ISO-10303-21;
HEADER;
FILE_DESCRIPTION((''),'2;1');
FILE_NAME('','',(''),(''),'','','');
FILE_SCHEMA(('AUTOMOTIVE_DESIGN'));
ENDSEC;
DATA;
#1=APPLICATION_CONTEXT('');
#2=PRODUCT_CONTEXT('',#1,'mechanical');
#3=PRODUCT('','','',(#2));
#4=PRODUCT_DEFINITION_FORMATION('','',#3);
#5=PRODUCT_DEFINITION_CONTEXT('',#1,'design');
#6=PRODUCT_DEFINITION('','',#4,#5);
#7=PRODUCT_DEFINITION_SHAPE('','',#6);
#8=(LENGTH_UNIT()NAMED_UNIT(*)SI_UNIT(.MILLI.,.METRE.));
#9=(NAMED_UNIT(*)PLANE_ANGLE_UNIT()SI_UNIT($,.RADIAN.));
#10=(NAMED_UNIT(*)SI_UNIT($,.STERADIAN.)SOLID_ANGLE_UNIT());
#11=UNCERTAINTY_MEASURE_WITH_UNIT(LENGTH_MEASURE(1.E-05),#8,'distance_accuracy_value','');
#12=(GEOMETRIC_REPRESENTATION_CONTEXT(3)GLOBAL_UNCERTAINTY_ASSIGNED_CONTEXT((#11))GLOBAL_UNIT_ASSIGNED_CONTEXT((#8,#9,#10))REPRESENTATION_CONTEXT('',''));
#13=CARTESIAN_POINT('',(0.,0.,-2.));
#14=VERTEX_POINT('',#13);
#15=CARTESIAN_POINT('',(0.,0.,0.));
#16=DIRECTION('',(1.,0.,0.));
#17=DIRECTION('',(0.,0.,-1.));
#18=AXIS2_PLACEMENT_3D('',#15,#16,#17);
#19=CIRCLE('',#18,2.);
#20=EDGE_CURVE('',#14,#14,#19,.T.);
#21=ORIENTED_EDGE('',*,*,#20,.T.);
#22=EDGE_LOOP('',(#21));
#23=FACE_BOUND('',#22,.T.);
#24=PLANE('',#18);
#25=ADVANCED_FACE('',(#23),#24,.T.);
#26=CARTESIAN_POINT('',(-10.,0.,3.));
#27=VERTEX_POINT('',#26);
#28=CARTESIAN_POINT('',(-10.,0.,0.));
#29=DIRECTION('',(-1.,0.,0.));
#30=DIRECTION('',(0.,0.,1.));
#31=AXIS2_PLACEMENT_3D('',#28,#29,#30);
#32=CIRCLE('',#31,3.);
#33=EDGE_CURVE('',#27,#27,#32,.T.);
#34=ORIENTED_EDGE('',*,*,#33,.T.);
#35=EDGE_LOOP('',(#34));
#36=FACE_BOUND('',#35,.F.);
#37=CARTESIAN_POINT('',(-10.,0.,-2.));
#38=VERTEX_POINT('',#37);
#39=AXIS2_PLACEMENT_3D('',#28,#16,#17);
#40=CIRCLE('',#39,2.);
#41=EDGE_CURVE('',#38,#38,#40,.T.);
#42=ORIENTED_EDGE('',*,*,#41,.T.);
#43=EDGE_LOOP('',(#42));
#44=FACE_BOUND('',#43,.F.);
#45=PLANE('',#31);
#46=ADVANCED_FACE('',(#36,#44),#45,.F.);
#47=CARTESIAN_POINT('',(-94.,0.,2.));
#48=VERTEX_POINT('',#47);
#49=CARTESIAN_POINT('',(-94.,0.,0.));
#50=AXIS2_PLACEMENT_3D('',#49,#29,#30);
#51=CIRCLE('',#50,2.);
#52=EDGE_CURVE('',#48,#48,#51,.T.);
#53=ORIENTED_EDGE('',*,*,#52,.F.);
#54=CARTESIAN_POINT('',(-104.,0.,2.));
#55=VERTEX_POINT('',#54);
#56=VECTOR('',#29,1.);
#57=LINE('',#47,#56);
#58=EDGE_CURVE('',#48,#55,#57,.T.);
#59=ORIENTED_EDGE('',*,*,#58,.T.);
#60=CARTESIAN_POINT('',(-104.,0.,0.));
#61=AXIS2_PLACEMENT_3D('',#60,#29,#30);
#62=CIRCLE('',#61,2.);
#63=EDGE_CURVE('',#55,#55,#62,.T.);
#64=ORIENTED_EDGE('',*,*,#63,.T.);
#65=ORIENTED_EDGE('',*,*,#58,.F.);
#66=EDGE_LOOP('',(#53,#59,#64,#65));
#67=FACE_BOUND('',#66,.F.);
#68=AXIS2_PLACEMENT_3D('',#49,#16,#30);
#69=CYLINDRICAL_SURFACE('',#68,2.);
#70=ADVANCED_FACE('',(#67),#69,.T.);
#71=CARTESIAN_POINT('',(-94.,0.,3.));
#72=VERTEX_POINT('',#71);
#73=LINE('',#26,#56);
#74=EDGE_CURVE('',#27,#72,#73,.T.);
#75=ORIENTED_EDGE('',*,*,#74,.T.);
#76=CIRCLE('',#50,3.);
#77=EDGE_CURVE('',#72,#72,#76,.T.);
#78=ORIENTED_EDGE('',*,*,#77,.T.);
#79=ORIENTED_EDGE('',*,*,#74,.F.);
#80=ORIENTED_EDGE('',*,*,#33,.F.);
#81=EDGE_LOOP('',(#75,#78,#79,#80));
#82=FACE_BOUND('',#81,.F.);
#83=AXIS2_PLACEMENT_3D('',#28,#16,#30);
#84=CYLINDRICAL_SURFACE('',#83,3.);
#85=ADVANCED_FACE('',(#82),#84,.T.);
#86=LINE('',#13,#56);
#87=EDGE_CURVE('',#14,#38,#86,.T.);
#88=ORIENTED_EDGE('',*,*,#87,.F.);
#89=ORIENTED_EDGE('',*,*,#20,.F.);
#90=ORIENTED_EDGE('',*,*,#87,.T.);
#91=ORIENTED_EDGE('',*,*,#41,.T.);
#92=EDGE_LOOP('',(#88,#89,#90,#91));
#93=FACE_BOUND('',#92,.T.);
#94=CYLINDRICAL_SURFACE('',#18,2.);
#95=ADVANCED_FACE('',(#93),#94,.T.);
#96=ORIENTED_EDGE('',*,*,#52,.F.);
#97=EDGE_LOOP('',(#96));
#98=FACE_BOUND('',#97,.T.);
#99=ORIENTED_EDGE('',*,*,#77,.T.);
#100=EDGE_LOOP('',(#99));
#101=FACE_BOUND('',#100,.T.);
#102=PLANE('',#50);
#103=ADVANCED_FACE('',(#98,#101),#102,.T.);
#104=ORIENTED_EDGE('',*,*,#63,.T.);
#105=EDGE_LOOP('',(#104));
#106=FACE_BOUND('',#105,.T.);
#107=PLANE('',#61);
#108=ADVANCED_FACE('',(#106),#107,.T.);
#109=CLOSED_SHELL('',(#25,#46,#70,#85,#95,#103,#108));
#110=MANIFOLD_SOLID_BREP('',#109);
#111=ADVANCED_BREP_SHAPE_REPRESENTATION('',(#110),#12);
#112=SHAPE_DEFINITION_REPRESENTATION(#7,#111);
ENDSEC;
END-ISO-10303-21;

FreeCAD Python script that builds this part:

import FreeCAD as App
import Part
import Sketcher
from FreeCAD import Vector

doc = App.newDocument("Part")
params = doc.addObject("Spreadsheet::Sheet", "Params")
for row, (alias, value) in enumerate([
    ("sketch1_diameter", "4 mm"),
    ("pad1_length", "10 mm"),
    ("sketch2_diameter", "6 mm"),
    ("pad2_length", "84 mm"),
    ("sketch3_diameter", "4 mm"),
    ("pad3_length", "10 mm"),
], start=1):
    params.set(f"A{row}", alias)
    params.set(f"B{row}", "=" + value)
    params.setAlias(f"B{row}", alias)

body = doc.addObject("PartDesign::Body", "Body")

# Sketch on YZ plane
sketch1 = body.newObject("Sketcher::SketchObject", "Sketch")
sketch1.AttachmentSupport = (doc.getObject("YZ_Plane"), [""])
sketch1.MapMode = "FlatFace"
sketch1.addGeometry(Part.Circle(Vector(0, 0, 0), Vector(0, 0, 1), 2), False)
sketch1.addConstraint(Sketcher.Constraint("Coincident", 0, 3, -1, 1))
sketch1.addConstraint(Sketcher.Constraint("Diameter", 0, 4.0))
sketch1.setExpression("Constraints[1]", "Params.sketch1_diameter")
pad1 = body.newObject("PartDesign::Pad", "Pad")
pad1.Profile = sketch1
pad1.setExpression("Length", "Params.pad1_length")
pad1.Reversed = True

# Sketch on YZ plane
sketch2 = body.newObject("Sketcher::SketchObject", "Sketch001")
sketch2.AttachmentSupport = (doc.getObject("YZ_Plane"), [""])
sketch2.MapMode = "FlatFace"
sketch2.AttachmentOffset = App.Placement(Vector(0, 0, -10), App.Rotation())
sketch2.addGeometry(Part.Circle(Vector(0, 0, 0), Vector(0, 0, 1), 3), False)
sketch2.addConstraint(Sketcher.Constraint("Coincident", 0, 3, -1, 1))
sketch2.addConstraint(Sketcher.Constraint("Diameter", 0, 6.0))
sketch2.setExpression("Constraints[1]", "Params.sketch2_diameter")
pad2 = body.newObject("PartDesign::Pad", "Pad001")
pad2.Profile = sketch2
pad2.setExpression("Length", "Params.pad2_length")
pad2.Reversed = True

# Sketch on YZ plane
sketch3 = body.newObject("Sketcher::SketchObject", "Sketch002")
sketch3.AttachmentSupport = (doc.getObject("YZ_Plane"), [""])
sketch3.MapMode = "FlatFace"
sketch3.AttachmentOffset = App.Placement(Vector(0, 0, -94), App.Rotation())
sketch3.addGeometry(Part.Circle(Vector(0, 0, 0), Vector(0, 0, 1), 2), False)
sketch3.addConstraint(Sketcher.Constraint("Coincident", 0, 3, -1, 1))
sketch3.addConstraint(Sketcher.Constraint("Diameter", 0, 4.0))
sketch3.setExpression("Constraints[1]", "Params.sketch3_diameter")
pad3 = body.newObject("PartDesign::Pad", "Pad002")
pad3.Profile = sketch3
pad3.setExpression("Length", "Params.pad3_length")
pad3.Reversed = True

doc.recompute()
